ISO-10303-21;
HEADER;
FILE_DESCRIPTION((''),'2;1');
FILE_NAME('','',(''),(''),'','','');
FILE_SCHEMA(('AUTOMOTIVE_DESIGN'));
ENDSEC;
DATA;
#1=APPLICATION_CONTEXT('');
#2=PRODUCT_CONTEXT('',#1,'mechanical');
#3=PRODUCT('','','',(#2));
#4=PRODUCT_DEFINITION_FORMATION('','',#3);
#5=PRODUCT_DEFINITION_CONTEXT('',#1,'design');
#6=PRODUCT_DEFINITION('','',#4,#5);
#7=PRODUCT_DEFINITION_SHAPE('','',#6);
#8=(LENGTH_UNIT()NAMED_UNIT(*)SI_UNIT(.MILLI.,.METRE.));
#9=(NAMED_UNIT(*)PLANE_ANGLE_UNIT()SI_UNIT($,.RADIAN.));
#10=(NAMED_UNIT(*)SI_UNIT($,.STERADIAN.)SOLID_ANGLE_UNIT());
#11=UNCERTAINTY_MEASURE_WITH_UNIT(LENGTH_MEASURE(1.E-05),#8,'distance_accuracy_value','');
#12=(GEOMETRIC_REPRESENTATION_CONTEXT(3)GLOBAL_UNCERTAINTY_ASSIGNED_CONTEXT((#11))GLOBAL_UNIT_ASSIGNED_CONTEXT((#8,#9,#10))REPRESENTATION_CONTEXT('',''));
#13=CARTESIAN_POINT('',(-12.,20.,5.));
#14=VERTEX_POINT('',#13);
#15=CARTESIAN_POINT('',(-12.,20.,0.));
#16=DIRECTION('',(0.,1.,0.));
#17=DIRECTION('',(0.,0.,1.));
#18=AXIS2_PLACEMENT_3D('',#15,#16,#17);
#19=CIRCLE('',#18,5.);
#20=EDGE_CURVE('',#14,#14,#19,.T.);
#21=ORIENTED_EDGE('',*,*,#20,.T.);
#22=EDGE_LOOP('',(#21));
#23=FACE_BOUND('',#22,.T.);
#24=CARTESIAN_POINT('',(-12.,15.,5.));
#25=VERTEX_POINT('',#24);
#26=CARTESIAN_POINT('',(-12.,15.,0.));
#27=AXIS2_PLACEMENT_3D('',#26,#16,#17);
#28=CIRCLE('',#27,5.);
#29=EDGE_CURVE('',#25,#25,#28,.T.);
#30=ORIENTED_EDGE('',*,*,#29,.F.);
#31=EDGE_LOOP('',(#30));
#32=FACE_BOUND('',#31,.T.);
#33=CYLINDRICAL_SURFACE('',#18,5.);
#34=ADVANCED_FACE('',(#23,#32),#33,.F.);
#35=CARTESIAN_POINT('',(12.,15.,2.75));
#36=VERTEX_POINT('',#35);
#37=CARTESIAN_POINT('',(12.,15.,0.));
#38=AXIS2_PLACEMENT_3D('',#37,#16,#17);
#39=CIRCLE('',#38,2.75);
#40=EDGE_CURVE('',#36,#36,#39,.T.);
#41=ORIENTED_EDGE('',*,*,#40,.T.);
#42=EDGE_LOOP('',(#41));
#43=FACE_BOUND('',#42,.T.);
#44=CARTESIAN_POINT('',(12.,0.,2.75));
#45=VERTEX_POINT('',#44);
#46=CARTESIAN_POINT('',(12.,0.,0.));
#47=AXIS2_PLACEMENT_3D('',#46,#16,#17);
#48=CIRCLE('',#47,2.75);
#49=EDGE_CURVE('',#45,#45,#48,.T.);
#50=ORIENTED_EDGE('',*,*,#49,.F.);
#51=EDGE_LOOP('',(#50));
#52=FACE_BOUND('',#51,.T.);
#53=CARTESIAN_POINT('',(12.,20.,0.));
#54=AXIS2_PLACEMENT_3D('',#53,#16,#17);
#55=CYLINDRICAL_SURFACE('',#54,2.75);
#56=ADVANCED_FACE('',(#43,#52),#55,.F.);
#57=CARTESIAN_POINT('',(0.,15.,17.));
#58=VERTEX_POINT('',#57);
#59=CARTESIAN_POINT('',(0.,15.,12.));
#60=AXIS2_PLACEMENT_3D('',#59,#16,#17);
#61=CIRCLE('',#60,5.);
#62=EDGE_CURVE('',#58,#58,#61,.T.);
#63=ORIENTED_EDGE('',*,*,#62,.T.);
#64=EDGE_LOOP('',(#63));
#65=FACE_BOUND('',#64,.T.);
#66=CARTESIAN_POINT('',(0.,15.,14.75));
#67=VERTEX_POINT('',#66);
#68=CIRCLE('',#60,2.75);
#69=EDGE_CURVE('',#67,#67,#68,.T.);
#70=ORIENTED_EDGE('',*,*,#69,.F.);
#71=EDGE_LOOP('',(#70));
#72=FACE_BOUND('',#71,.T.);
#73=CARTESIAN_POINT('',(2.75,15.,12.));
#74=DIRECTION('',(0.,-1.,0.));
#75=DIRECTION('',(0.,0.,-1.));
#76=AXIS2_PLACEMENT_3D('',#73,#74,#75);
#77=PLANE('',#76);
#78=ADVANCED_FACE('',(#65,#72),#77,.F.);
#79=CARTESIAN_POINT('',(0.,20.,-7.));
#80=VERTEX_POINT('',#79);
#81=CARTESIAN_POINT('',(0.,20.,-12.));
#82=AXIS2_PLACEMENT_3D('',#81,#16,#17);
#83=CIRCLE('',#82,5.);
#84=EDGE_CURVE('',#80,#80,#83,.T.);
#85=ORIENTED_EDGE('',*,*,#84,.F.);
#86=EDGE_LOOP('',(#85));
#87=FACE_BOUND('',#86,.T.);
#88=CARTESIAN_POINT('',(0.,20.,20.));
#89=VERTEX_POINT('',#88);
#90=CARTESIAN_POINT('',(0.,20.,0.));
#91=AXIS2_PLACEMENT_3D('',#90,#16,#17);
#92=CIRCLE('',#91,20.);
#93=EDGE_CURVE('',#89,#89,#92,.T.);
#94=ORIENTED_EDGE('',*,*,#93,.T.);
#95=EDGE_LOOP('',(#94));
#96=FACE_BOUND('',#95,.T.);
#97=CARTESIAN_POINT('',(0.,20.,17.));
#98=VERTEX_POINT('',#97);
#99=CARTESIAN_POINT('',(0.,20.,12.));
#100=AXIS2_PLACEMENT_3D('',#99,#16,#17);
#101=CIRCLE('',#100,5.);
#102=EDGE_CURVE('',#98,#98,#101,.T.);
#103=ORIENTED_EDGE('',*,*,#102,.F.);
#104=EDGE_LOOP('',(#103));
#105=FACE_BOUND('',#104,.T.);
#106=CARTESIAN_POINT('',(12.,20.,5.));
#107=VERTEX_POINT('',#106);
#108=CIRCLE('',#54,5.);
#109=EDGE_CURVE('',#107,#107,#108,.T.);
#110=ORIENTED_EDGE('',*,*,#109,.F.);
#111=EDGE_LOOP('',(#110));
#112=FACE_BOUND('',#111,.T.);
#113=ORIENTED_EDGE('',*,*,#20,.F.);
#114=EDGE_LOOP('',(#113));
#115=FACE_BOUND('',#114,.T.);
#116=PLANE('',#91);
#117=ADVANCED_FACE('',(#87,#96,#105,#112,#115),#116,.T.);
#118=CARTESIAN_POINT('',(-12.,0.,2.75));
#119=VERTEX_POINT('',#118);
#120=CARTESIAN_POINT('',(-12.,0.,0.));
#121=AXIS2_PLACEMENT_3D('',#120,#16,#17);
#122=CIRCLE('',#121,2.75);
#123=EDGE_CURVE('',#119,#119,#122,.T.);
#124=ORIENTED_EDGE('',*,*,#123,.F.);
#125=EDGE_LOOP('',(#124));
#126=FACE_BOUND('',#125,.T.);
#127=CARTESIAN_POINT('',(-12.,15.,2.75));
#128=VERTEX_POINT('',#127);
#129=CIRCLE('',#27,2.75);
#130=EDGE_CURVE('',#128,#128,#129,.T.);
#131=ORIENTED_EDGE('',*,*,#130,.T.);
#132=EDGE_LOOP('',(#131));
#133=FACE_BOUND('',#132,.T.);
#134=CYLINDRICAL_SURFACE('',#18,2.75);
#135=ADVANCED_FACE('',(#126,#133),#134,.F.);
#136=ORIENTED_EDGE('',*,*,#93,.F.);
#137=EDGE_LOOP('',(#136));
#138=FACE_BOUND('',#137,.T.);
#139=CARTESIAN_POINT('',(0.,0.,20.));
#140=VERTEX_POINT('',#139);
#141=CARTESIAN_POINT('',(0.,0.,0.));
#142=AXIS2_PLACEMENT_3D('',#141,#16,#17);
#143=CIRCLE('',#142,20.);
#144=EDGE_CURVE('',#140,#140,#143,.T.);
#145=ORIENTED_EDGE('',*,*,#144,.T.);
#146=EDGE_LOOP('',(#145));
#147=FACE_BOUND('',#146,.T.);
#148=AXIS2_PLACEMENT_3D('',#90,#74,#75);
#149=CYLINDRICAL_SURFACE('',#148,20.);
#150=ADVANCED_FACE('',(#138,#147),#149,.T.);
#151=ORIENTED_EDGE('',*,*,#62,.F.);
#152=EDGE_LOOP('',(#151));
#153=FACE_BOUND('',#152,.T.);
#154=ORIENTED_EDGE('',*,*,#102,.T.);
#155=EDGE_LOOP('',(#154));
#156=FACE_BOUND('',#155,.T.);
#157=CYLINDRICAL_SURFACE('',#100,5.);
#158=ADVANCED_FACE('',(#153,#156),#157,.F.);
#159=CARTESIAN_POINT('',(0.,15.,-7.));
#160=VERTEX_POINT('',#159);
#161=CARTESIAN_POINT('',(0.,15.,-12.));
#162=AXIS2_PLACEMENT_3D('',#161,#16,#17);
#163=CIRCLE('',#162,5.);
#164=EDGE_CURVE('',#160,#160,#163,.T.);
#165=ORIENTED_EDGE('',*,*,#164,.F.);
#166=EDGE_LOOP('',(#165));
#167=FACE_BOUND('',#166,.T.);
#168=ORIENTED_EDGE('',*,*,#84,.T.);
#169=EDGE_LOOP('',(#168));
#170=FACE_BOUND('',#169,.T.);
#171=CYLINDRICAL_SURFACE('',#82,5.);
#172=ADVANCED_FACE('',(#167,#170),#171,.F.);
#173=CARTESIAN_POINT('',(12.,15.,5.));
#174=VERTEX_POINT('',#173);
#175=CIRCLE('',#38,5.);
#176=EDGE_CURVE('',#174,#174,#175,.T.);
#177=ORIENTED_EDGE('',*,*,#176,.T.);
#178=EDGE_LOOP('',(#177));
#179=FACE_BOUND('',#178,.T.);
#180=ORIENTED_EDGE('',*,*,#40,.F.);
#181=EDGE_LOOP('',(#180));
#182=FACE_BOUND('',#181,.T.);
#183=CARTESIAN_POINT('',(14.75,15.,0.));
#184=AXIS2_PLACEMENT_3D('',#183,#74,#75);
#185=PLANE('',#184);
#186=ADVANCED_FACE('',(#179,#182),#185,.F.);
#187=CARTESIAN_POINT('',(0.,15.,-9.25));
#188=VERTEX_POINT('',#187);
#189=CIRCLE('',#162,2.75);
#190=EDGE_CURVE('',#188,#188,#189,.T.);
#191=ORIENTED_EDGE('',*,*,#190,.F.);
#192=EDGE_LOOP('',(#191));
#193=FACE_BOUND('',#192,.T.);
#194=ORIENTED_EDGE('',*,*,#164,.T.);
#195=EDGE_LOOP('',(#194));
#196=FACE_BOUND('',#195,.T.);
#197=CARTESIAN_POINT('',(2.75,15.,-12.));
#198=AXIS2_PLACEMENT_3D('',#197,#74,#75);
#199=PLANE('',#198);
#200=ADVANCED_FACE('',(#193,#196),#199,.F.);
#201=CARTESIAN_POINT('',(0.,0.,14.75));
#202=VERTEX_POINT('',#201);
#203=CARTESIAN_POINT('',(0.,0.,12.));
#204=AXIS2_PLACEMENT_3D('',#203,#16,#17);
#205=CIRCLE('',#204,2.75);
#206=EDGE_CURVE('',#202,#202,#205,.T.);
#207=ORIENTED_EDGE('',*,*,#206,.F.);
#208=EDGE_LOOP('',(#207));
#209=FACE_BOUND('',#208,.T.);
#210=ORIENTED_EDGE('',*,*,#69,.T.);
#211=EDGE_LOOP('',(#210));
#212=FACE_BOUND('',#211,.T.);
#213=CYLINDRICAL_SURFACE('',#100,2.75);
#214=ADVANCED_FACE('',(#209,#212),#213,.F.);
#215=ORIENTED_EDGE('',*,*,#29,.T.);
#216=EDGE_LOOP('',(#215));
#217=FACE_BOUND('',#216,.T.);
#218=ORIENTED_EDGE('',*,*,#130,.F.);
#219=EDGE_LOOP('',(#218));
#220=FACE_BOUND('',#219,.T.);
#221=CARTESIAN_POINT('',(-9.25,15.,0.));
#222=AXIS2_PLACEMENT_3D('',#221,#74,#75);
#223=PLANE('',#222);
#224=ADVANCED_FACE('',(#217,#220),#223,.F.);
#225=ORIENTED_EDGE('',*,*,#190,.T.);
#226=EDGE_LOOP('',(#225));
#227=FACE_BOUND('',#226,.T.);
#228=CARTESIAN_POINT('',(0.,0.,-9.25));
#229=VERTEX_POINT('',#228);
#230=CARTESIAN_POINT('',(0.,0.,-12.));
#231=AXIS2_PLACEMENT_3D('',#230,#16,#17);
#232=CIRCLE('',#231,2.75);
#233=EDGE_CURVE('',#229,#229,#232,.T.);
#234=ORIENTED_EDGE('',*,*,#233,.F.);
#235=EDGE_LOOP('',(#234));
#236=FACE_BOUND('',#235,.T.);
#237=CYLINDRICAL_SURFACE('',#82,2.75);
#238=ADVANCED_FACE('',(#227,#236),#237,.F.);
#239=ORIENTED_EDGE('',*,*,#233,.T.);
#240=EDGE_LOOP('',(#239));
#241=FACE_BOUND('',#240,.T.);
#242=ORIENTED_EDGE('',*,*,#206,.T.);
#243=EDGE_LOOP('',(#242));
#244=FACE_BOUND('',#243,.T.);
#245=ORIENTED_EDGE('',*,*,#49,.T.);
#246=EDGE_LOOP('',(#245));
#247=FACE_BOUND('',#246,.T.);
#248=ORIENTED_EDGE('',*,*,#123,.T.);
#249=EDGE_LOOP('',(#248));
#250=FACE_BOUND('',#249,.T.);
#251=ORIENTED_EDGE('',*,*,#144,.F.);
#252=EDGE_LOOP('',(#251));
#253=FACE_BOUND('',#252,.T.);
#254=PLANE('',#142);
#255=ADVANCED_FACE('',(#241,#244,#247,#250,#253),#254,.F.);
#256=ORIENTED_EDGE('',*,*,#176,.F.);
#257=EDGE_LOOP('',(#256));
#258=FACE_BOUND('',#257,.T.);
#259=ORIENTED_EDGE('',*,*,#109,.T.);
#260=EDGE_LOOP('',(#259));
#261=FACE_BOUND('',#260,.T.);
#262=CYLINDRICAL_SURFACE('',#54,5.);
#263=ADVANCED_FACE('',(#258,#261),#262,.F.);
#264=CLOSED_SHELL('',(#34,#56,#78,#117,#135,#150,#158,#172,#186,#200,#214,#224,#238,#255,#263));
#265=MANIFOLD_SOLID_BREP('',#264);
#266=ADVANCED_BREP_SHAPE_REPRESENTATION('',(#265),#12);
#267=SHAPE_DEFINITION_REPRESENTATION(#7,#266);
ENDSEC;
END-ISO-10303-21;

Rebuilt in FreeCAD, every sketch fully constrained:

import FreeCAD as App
import Part
import Sketcher

V = App.Vector

doc = App.newDocument("Part")
params = doc.addObject("Spreadsheet::Sheet", "Params")
for row, (alias, value) in enumerate([
    ("sketch1_diameter", "40 mm"),
    ("pad1_length", "20 mm"),
    ("sketch2_diameter", "5.5 mm"),
    ("hole_diameter", "5.5 mm"),
    ("hole_cbore_diameter", "10 mm"),
    ("hole_cbore_depth", "5 mm"),
], start=1):
    params.set(f"A{row}", alias)
    params.set(f"B{row}", "=" + value)
    params.setAlias(f"B{row}", alias)

body = doc.addObject("PartDesign::Body", "Body")

# Sketch on XZ plane
sketch1 = body.newObject("Sketcher::SketchObject", "Sketch")
sketch1.AttachmentSupport = (doc.getObject("XZ_Plane"), [""])
sketch1.MapMode = "FlatFace"
sketch1.addGeometry(Part.Circle(V(0, 0, 0), V(0, 0, 1), 20), False)
sketch1.addConstraint(Sketcher.Constraint("Coincident", 0, 3, -1, 1))
sketch1.addConstraint(Sketcher.Constraint("Diameter", 0, 40.0))
sketch1.setExpression("Constraints[1]", "Params.sketch1_diameter")
pad1 = body.newObject("PartDesign::Pad", "Pad")
pad1.Profile = sketch1
pad1.setExpression("Length", "Params.pad1_length")
pad1.Reversed = True

# Sketch on XZ plane
sketch2 = body.newObject("Sketcher::SketchObject", "Sketch001")
sketch2.AttachmentSupport = (doc.getObject("XZ_Plane"), [""])
sketch2.MapMode = "FlatFace"
sketch2.AttachmentOffset = App.Placement(V(0, 0, -20), App.Rotation())
sketch2.addGeometry(Part.Circle(V(0, -12, 0), V(0, 0, 1), 2.8), False)
sketch2.addGeometry(Part.Circle(V(12, 0, 0), V(0, 0, 1), 2.8), False)
sketch2.addGeometry(Part.Circle(V(0, 12, 0), V(0, 0, 1), 2.8), False)
sketch2.addGeometry(Part.Circle(V(-12, 0, 0), V(0, 0, 1), 2.8), False)
sketch2.addConstraint(Sketcher.Constraint("Equal", 0, 1))
sketch2.addConstraint(Sketcher.Constraint("Equal", 1, 2))
sketch2.addConstraint(Sketcher.Constraint("Equal", 2, 3))
sketch2.addConstraint(Sketcher.Constraint("Symmetric", 0, 3, 2, 3, -1, 1))
sketch2.addConstraint(Sketcher.Constraint("Symmetric", 1, 3, 3, 3, -1, 1))
sketch2.addConstraint(Sketcher.Constraint("PointOnObject", 0, 3, -2))
sketch2.addConstraint(Sketcher.Constraint("PointOnObject", 1, 3, -1))
sketch2.addConstraint(Sketcher.Constraint("Diameter", 0, 5.5))
sketch2.addConstraint(Sketcher.Constraint("DistanceY", 0, 3, -1, 1, 12.0))
sketch2.addConstraint(Sketcher.Constraint("DistanceX", -1, 1, 1, 3, 12.0))
sketch2.setExpression("Constraints[7]", "Params.sketch2_diameter")
doc.recompute()
hole = body.newObject("PartDesign::Hole", "Hole")
hole.Profile = sketch2
hole.ThreadType = "None"
hole.setExpression("Diameter", "Params.hole_diameter")
hole.DepthType = "ThroughAll"
hole.HoleCutType = "Counterbore"
hole.setExpression("HoleCutDiameter", "Params.hole_cbore_diameter")
hole.setExpression("HoleCutDepth", "Params.hole_cbore_depth")
hole.Reversed = True

doc.recompute()
